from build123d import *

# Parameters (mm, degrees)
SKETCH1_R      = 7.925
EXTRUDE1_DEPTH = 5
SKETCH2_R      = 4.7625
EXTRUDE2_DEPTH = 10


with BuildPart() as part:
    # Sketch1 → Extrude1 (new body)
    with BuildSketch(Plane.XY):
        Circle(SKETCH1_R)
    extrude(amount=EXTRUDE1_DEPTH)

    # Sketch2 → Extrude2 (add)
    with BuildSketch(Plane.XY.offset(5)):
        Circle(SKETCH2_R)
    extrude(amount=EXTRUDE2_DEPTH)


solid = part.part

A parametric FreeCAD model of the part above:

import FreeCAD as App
import Part
import Sketcher
Q = App.Units.Quantity

doc = App.newDocument("Part")
body = doc.addObject("PartDesign::Body", "Body")

sketch1 = body.newObject("Sketcher::SketchObject", "Sketch")
sketch1.AttachmentSupport = (doc.getObject("XY_Plane"), [""])
sketch1.MapMode = "FlatFace"
sketch1.addGeometry(Part.Circle(App.Vector(0, 0, 0), App.Vector(0, 0, 1), 8), False)
sketch1.addConstraint([
    Sketcher.Constraint("Coincident", 0, 3, -1, 1),
    Sketcher.Constraint("Diameter", 0, Q("15.85 mm")),
])
pad1 = body.newObject("PartDesign::Pad", "Pad")
pad1.Profile = sketch1
pad1.Length = 5

sketch2 = body.newObject("Sketcher::SketchObject", "Sketch001")
sketch2.AttachmentSupport = (doc.getObject("XY_Plane"), [""])
sketch2.MapMode = "FlatFace"
sketch2.AttachmentOffset = App.Placement(App.Vector(0, 0, 5), App.Rotation())
sketch2.addGeometry(Part.Circle(App.Vector(0, 0, 0), App.Vector(0, 0, 1), 4.8), False)
sketch2.addConstraint([
    Sketcher.Constraint("Coincident", 0, 3, -1, 1),
    Sketcher.Constraint("Diameter", 0, Q("9.525 mm")),
])
pad2 = body.newObject("PartDesign::Pad", "Pad001")
pad2.Profile = sketch2
pad2.Length = 10

doc.recompute()
